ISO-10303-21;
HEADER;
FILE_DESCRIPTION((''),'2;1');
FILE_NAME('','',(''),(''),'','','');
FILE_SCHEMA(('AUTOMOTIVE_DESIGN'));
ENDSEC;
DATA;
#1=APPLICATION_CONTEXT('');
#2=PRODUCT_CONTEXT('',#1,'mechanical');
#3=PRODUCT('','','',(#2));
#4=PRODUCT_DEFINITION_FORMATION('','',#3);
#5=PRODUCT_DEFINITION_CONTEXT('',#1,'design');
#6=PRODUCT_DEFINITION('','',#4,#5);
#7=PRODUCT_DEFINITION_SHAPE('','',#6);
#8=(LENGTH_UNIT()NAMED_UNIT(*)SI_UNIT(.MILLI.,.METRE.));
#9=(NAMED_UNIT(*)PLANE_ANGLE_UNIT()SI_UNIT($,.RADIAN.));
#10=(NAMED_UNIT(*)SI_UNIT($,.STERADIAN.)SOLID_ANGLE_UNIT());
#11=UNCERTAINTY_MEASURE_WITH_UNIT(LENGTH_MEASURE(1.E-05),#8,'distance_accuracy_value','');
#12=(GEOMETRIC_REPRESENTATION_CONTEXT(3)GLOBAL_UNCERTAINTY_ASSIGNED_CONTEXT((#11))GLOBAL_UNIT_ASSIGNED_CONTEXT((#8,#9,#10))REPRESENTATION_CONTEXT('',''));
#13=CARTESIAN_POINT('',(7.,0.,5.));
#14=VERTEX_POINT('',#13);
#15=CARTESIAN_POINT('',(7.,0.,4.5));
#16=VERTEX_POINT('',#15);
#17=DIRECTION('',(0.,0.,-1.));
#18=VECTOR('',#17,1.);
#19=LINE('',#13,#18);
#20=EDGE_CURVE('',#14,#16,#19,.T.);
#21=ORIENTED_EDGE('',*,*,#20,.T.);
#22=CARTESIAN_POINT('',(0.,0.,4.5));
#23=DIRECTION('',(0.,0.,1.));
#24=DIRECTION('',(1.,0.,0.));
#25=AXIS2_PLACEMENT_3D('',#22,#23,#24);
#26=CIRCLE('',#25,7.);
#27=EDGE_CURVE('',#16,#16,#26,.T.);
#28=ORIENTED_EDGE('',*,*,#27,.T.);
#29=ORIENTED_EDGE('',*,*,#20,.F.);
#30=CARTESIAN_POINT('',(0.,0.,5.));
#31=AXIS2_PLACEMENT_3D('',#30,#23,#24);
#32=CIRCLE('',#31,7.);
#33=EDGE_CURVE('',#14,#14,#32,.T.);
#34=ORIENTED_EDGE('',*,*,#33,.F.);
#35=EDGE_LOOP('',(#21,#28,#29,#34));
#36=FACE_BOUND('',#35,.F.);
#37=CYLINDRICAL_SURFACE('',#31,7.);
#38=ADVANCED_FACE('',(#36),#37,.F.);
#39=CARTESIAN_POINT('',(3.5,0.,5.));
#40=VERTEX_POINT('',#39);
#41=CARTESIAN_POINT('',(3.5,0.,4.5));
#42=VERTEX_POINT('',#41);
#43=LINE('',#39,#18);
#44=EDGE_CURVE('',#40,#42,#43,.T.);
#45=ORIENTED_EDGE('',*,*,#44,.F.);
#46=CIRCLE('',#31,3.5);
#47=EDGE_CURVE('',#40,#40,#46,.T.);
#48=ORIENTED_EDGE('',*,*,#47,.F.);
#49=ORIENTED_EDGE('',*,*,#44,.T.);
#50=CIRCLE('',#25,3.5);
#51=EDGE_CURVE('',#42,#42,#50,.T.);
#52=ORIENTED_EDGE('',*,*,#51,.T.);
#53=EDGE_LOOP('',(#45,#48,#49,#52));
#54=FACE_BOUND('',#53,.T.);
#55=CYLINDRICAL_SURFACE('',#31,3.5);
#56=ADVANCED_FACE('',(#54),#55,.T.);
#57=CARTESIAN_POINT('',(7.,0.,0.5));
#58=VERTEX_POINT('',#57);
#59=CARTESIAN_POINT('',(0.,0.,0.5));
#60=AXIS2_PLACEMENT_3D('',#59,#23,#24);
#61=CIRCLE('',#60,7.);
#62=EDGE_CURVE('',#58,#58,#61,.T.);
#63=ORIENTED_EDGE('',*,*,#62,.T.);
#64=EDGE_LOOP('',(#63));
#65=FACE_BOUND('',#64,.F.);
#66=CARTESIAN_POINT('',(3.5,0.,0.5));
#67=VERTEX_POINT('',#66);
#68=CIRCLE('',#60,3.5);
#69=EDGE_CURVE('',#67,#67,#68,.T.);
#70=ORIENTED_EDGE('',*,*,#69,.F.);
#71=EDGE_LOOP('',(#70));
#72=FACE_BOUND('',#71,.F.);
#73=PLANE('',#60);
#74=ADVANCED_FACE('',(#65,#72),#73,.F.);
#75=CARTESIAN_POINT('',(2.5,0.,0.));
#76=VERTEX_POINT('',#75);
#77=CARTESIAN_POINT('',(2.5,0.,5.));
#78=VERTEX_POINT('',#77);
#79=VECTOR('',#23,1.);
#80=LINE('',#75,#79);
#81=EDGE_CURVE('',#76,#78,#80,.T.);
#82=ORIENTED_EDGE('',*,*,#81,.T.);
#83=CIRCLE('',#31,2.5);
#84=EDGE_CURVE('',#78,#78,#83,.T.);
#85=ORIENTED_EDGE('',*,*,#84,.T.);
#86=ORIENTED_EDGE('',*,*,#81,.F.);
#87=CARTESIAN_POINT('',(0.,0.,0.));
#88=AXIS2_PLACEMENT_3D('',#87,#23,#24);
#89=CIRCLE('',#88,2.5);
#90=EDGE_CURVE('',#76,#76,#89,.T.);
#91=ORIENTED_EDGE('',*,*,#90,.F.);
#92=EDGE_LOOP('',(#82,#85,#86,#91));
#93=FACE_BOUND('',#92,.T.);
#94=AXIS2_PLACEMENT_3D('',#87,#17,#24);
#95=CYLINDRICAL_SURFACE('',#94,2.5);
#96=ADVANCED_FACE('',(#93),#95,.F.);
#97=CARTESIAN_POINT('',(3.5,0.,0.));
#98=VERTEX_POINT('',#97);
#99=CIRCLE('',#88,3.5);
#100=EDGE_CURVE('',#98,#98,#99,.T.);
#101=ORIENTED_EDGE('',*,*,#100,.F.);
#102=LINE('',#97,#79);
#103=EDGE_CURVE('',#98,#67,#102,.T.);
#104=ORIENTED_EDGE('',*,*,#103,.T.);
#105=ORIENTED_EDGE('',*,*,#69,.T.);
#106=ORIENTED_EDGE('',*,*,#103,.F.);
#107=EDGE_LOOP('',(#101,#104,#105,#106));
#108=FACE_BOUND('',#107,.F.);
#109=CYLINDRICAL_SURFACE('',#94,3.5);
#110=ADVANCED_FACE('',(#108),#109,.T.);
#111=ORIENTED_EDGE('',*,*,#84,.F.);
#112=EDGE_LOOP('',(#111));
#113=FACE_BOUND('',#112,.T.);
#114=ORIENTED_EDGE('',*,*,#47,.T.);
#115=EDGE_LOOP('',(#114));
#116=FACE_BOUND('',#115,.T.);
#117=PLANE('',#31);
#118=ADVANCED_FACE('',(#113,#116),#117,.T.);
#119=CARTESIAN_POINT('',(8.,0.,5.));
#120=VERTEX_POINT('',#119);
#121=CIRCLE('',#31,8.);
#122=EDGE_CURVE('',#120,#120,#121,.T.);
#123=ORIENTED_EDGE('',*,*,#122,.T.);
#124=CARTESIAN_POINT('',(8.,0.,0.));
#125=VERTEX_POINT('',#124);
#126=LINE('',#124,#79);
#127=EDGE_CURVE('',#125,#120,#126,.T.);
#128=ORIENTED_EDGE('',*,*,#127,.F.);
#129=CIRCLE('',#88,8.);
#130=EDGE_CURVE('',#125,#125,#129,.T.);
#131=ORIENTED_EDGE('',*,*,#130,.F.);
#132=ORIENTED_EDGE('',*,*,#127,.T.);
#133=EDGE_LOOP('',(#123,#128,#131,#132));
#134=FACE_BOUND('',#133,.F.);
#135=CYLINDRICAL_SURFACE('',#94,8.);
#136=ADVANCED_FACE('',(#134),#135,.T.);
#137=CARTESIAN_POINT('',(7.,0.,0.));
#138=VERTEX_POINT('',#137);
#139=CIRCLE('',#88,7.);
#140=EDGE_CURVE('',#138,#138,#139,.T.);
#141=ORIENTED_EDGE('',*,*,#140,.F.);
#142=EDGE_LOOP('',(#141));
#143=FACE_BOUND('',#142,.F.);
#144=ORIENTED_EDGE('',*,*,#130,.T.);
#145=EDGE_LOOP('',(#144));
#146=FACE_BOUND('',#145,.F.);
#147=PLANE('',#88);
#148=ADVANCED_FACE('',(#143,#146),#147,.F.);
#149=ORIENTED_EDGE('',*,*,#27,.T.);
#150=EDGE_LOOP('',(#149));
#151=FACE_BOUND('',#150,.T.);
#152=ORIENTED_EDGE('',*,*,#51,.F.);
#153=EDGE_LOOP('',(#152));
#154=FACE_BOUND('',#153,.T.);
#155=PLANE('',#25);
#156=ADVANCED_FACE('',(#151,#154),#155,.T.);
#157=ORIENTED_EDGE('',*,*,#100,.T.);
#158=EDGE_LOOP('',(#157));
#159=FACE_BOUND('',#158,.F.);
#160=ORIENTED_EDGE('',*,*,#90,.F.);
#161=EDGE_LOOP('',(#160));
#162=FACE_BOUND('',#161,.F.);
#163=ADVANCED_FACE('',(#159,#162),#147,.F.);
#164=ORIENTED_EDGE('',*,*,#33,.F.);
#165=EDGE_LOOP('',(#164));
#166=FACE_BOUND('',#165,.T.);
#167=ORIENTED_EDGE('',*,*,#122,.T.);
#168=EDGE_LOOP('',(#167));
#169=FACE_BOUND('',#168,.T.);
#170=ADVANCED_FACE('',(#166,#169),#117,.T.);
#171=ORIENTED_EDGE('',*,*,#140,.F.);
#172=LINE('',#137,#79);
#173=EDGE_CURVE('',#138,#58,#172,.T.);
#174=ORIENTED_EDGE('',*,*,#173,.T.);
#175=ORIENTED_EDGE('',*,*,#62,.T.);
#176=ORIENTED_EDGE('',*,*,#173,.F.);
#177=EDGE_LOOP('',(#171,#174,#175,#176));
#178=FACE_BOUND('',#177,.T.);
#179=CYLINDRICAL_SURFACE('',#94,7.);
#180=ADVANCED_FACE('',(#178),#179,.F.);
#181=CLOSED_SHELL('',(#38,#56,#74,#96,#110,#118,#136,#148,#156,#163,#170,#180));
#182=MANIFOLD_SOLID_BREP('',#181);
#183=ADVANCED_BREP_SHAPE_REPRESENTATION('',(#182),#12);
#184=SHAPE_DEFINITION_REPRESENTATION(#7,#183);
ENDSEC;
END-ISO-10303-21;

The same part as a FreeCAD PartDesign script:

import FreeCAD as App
import Part
import Sketcher

V = App.Vector
Q = App.Units.Quantity

doc = App.newDocument("Part")
body = doc.addObject("PartDesign::Body", "Body")

# Sketch on XY plane
sketch1 = doc.addObject("Sketcher::SketchObject", "Sketch")
body.addObject(sketch1)
sketch1.AttachmentSupport = (doc.XY_Plane, [""])
sketch1.MapMode = "FlatFace"
sketch1.addGeometry(Part.Circle(V(0, 0, 0), V(0, 0, 1), 8), False)
sketch1.addGeometry(Part.Circle(V(0, 0, 0), V(0, 0, 1), 2.5), False)
sketch1.addConstraint(Sketcher.Constraint("Coincident", 0, 3, -1, 1))
sketch1.addConstraint(Sketcher.Constraint("Coincident", 1, 3, -1, 1))
sketch1.addConstraint(Sketcher.Constraint("Diameter", 0, Q("16 mm")))
sketch1.addConstraint(Sketcher.Constraint("Diameter", 1, Q("5 mm")))
pad1 = doc.addObject("PartDesign::Pad", "Pad")
body.addObject(pad1)
pad1.Profile = sketch1
pad1.Length = 5

# Sketch on XY plane
sketch2 = doc.addObject("Sketcher::SketchObject", "Sketch001")
body.addObject(sketch2)
sketch2.AttachmentSupport = (doc.XY_Plane, [""])
sketch2.MapMode = "FlatFace"
sketch2.AttachmentOffset = App.Placement(V(0, 0, 5), App.Rotation())
sketch2.addGeometry(Part.Circle(V(0, 0, 0), V(0, 0, 1), 7), False)
sketch2.addGeometry(Part.Circle(V(0, 0, 0), V(0, 0, 1), 3.5), False)
sketch2.addConstraint(Sketcher.Constraint("Coincident", 0, 3, -1, 1))
sketch2.addConstraint(Sketcher.Constraint("Coincident", 1, 3, -1, 1))
sketch2.addConstraint(Sketcher.Constraint("Diameter", 0, Q("14 mm")))
sketch2.addConstraint(Sketcher.Constraint("Diameter", 1, Q("7 mm")))
pocket1 = doc.addObject("PartDesign::Pocket", "Pocket")
body.addObject(pocket1)
pocket1.Profile = sketch2
pocket1.Length = 0.5

# Sketch on XY plane
sketch3 = doc.addObject("Sketcher::SketchObject", "Sketch002")
body.addObject(sketch3)
sketch3.AttachmentSupport = (doc.XY_Plane, [""])
sketch3.MapMode = "FlatFace"
sketch3.addGeometry(Part.Circle(V(0, 0, 0), V(0, 0, 1), 7), False)
sketch3.addGeometry(Part.Circle(V(0, 0, 0), V(0, 0, 1), 3.5), False)
sketch3.addConstraint(Sketcher.Constraint("Coincident", 0, 3, -1, 1))
sketch3.addConstraint(Sketcher.Constraint("Coincident", 1, 3, -1, 1))
sketch3.addConstraint(Sketcher.Constraint("Diameter", 0, Q("14 mm")))
sketch3.addConstraint(Sketcher.Constraint("Diameter", 1, Q("7 mm")))
pocket2 = doc.addObject("PartDesign::Pocket", "Pocket001")
body.addObject(pocket2)
pocket2.Profile = sketch3
pocket2.Length = 0.5
pocket2.Reversed = True

doc.recompute()
